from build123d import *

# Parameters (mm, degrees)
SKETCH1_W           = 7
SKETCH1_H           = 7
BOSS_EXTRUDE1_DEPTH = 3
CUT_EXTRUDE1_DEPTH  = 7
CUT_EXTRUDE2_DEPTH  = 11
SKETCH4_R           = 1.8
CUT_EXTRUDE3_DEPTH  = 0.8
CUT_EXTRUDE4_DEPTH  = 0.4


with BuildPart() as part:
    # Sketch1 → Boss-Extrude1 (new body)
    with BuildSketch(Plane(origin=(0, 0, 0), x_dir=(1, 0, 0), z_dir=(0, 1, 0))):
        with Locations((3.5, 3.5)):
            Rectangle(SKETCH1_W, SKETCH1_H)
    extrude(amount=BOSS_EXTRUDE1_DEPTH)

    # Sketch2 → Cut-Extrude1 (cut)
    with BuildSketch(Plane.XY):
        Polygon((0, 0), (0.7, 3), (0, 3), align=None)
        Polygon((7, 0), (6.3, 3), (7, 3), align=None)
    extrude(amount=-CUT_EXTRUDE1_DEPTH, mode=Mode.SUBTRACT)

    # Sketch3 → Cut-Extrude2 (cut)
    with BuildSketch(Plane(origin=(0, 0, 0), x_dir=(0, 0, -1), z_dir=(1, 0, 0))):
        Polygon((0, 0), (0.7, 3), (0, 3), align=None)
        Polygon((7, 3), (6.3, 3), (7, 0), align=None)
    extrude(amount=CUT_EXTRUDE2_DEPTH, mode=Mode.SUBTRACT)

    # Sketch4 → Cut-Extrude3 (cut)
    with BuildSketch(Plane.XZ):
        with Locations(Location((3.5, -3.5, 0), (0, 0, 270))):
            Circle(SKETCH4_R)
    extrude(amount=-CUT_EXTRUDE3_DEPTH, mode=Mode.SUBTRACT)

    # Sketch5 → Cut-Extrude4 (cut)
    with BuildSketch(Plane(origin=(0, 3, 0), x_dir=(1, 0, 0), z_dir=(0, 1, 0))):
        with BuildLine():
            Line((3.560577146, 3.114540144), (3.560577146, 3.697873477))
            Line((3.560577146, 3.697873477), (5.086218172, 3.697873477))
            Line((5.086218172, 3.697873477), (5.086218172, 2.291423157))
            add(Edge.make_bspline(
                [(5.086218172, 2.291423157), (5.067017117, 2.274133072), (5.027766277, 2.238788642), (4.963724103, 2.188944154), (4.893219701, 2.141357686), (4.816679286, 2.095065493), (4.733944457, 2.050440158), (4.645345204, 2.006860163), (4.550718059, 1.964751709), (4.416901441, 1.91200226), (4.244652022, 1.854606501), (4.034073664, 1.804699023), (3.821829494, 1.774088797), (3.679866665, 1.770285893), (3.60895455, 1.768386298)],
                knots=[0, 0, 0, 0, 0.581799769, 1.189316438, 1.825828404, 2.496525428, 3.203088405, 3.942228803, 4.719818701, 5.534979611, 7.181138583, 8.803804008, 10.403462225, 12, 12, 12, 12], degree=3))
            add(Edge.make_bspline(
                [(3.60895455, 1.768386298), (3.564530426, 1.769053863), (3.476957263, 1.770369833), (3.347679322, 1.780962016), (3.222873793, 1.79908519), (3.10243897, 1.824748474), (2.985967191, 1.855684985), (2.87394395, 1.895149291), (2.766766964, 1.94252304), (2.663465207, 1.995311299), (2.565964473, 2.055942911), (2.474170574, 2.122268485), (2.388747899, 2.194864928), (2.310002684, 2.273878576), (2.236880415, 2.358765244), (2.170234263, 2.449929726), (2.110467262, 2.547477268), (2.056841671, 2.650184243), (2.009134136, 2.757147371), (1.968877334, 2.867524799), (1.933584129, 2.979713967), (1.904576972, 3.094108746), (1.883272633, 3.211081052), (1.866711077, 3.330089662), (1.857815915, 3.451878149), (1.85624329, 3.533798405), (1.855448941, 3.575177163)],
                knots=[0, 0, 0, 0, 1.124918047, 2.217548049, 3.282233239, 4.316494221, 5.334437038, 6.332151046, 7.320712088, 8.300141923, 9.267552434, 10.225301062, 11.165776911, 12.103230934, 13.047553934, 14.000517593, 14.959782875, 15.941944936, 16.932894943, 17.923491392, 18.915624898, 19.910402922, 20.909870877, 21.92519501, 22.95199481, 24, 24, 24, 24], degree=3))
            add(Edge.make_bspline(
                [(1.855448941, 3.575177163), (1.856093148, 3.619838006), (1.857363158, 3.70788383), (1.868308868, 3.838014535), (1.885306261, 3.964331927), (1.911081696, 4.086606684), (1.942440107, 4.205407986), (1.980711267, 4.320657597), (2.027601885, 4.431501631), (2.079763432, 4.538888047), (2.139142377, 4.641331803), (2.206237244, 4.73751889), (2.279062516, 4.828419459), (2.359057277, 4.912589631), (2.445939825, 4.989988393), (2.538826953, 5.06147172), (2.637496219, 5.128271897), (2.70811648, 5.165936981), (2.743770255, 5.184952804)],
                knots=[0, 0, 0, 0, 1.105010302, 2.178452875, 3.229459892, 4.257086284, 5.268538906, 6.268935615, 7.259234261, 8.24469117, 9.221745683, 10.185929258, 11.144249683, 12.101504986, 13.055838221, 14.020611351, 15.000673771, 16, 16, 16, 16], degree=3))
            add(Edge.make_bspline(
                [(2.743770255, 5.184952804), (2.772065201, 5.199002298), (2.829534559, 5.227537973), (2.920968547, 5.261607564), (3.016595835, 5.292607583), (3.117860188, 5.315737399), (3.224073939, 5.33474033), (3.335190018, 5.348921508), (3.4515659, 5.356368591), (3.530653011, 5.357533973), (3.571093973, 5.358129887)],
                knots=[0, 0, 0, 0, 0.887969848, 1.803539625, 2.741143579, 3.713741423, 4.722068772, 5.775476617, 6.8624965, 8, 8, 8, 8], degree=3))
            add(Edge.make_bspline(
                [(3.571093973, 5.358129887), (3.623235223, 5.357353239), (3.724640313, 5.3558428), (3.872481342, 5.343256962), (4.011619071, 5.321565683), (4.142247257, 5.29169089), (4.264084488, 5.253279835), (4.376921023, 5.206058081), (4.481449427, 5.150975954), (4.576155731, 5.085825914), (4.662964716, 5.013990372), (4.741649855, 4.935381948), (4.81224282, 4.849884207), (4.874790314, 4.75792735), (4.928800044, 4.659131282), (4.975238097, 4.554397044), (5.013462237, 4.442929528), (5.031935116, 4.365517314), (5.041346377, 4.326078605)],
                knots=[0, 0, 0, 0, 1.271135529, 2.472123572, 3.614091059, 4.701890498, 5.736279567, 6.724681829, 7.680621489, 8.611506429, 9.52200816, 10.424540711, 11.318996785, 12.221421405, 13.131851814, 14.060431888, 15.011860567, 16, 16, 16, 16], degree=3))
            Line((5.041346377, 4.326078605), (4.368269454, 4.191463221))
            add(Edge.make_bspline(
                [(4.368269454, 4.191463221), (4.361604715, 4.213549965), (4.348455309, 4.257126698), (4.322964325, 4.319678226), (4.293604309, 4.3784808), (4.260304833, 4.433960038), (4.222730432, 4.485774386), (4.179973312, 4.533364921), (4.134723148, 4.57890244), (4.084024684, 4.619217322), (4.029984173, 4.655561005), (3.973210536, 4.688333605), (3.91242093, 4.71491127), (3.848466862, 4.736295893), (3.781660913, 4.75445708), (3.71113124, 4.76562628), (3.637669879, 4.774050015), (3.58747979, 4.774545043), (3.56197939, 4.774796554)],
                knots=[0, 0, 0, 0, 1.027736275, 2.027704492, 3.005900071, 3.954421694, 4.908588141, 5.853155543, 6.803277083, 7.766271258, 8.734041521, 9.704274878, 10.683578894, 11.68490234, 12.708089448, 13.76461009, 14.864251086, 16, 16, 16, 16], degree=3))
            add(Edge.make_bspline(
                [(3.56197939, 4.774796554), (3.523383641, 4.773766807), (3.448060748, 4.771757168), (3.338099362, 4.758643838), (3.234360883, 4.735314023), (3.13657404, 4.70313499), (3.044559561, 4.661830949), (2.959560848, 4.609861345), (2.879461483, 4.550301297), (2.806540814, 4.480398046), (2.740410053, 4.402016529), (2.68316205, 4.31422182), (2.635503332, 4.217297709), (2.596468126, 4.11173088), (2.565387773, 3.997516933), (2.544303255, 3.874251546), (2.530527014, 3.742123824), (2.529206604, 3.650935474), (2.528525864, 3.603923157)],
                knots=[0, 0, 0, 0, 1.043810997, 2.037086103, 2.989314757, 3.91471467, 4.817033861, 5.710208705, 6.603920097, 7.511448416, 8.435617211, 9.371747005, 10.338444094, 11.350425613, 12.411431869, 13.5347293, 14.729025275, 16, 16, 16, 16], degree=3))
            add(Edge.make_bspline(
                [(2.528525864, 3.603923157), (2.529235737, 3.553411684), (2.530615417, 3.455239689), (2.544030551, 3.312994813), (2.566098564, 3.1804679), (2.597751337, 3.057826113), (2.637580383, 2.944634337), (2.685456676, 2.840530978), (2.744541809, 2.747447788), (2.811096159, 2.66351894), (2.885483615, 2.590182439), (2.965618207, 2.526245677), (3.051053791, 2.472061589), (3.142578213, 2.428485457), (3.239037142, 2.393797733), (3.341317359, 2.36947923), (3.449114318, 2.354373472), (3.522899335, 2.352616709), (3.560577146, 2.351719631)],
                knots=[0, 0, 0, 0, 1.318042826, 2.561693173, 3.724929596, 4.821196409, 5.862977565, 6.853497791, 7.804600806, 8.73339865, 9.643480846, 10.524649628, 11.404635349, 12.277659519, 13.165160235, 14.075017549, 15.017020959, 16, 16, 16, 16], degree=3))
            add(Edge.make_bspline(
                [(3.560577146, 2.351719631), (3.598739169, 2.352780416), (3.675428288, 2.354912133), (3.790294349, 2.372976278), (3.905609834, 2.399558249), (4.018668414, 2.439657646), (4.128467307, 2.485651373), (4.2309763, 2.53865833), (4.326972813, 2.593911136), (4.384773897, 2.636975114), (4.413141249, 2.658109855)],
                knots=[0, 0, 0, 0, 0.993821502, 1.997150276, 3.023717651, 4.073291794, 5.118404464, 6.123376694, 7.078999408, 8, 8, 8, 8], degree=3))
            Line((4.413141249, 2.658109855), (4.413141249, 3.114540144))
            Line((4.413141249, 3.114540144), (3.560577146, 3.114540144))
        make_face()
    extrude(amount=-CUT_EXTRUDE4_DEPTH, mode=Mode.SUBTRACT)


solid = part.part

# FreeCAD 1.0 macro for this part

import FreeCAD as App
import Part
import Sketcher
from FreeCAD import Vector

doc = App.newDocument("Part")
body = doc.addObject("PartDesign::Body", "Body")

sketch1 = body.newObject("Sketcher::SketchObject", "Sketch")
sketch1.AttachmentSupport = (doc.getObject("XZ_Plane"), [""])
sketch1.MapMode = "FlatFace"
sketch1.addGeometry([
    Part.LineSegment(Vector(0, -7, 0), Vector(0, 0, 0)),
    Part.LineSegment(Vector(0, 0, 0), Vector(7, 0, 0)),
    Part.LineSegment(Vector(7, 0, 0), Vector(7, -7, 0)),
    Part.LineSegment(Vector(7, -7, 0), Vector(0, -7, 0)),
], False)
sketch1.addConstraint([
    Sketcher.Constraint("Coincident", 0, 2, 1, 1),
    Sketcher.Constraint("Coincident", 1, 2, 2, 1),
    Sketcher.Constraint("Coincident", 2, 2, 3, 1),
    Sketcher.Constraint("Coincident", 3, 2, 0, 1),
    Sketcher.Constraint("Vertical", 0),
    Sketcher.Constraint("Horizontal", 1),
    Sketcher.Constraint("Vertical", 2),
    Sketcher.Constraint("Horizontal", 3),
    Sketcher.Constraint("Coincident", 0, 2, -1, 1),
    Sketcher.Constraint("Equal", 3, 0),
    Sketcher.Constraint("DistanceX", 1, 1, 1, 2, 7.0),
])
pad1 = body.newObject("PartDesign::Pad", "Pad")
pad1.Profile = sketch1
pad1.Length = 3
pad1.Reversed = True

sketch2 = body.newObject("Sketcher::SketchObject", "Sketch001")
sketch2.AttachmentSupport = (doc.getObject("XY_Plane"), [""])
sketch2.MapMode = "FlatFace"
sketch2.addGeometry([
    Part.LineSegment(Vector(0, 0, 0), Vector(0.7, 3, 0)),
    Part.LineSegment(Vector(0.7, 3, 0), Vector(0, 3, 0)),
    Part.LineSegment(Vector(0, 3, 0), Vector(0, 0, 0)),
    Part.LineSegment(Vector(6.3, 3, 0), Vector(7, 0, 0)),
    Part.LineSegment(Vector(7, 0, 0), Vector(7, 3, 0)),
    Part.LineSegment(Vector(7, 3, 0), Vector(6.3, 3, 0)),
], False)
sketch2.addConstraint([
    Sketcher.Constraint("Coincident", 0, 2, 1, 1),
    Sketcher.Constraint("Coincident", 1, 2, 2, 1),
    Sketcher.Constraint("Coincident", 2, 2, 0, 1),
    Sketcher.Constraint("Coincident", 3, 2, 4, 1),
    Sketcher.Constraint("Coincident", 4, 2, 5, 1),
    Sketcher.Constraint("Coincident", 5, 2, 3, 1),
    Sketcher.Constraint("Horizontal", 1),
    Sketcher.Constraint("Vertical", 2),
    Sketcher.Constraint("Vertical", 4),
    Sketcher.Constraint("Horizontal", 5),
    Sketcher.Constraint("Coincident", 2, 2, -1, 1),
    Sketcher.Constraint("PointOnObject", 3, 2, -1),
    Sketcher.Constraint("Horizontal", 1, 2, 4, 2),
    Sketcher.Constraint("Equal", 1, 5),
    Sketcher.Constraint("DistanceY", 2, 2, 2, 1, 3.0),
    Sketcher.Constraint("DistanceX", 1, 2, 1, 1, 0.7),
    Sketcher.Constraint("DistanceX", -1, 1, 3, 2, 7.0),
])
pocket1 = body.newObject("PartDesign::Pocket", "Pocket")
pocket1.Profile = sketch2
pocket1.Length = 7

sketch3 = body.newObject("Sketcher::SketchObject", "Sketch002")
sketch3.AttachmentSupport = (doc.getObject("YZ_Plane"), [""])
sketch3.MapMode = "FlatFace"
sketch3.addGeometry([
    Part.LineSegment(Vector(0, 0, 0), Vector(3, -0.7, 0)),
    Part.LineSegment(Vector(3, -0.7, 0), Vector(3, 0, 0)),
    Part.LineSegment(Vector(3, 0, 0), Vector(0, 0, 0)),
    Part.LineSegment(Vector(3, -7, 0), Vector(3, -6.3, 0)),
    Part.LineSegment(Vector(3, -6.3, 0), Vector(0, -7, 0)),
    Part.LineSegment(Vector(0, -7, 0), Vector(3, -7, 0)),
], False)
sketch3.addConstraint([
    Sketcher.Constraint("Coincident", 0, 2, 1, 1),
    Sketcher.Constraint("Coincident", 1, 2, 2, 1),
    Sketcher.Constraint("Coincident", 2, 2, 0, 1),
    Sketcher.Constraint("Coincident", 3, 2, 4, 1),
    Sketcher.Constraint("Coincident", 4, 2, 5, 1),
    Sketcher.Constraint("Coincident", 5, 2, 3, 1),
    Sketcher.Constraint("Vertical", 1),
    Sketcher.Constraint("Horizontal", 2),
    Sketcher.Constraint("Vertical", 3),
    Sketcher.Constraint("Horizontal", 5),
    Sketcher.Constraint("Coincident", 2, 2, -1, 1),
    Sketcher.Constraint("PointOnObject", 4, 2, -2),
    Sketcher.Constraint("Vertical", 1, 2, 3, 2),
    Sketcher.Constraint("Equal", 1, 3),
    Sketcher.Constraint("DistanceX", 2, 2, 2, 1, 3.0),
    Sketcher.Constraint("DistanceY", 1, 1, 1, 2, 0.7),
    Sketcher.Constraint("DistanceY", 4, 2, -1, 1, 7.0),
])
pocket2 = body.newObject("PartDesign::Pocket", "Pocket001")
pocket2.Profile = sketch3
pocket2.Length = 11
pocket2.Reversed = True

sketch4 = body.newObject("Sketcher::SketchObject", "Sketch003")
sketch4.AttachmentSupport = (doc.getObject("XZ_Plane"), [""])
sketch4.MapMode = "FlatFace"
sketch4.addGeometry(Part.Circle(Vector(3.5, -3.5, 0), Vector(0, 0, 1), 1.8), False)
sketch4.addConstraint([
    Sketcher.Constraint("Diameter", 0, 3.6),
    Sketcher.Constraint("DistanceX", -1, 1, 0, 3, 3.5),
    Sketcher.Constraint("DistanceY", 0, 3, -1, 1, 3.5),
])
pocket3 = body.newObject("PartDesign::Pocket", "Pocket002")
pocket3.Profile = sketch4
pocket3.Length = 0.8

sketch5 = body.newObject("Sketcher::SketchObject", "Sketch004")
sketch5.AttachmentSupport = (doc.getObject("XZ_Plane"), [""])
sketch5.MapMode = "FlatFace"
sketch5.AttachmentOffset = App.Placement(Vector(0, 0, -3), App.Rotation())
sketch5.addGeometry([
    Part.LineSegment(Vector(3.560577, -3.697873, 0), Vector(3.560577, -3.11454, 0)),
    Part.LineSegment(Vector(3.560577, -3.11454, 0), Vector(4.413141, -3.11454, 0)),
    Part.LineSegment(Vector(4.413141, -3.11454, 0), Vector(4.413141, -2.65811, 0)),
    Part.BSplineCurve([Vector(3.560577, -2.35172, 0), Vector(3.598739, -2.35278, 0), Vector(3.675428, -2.354912, 0), Vector(3.790294, -2.372976, 0), Vector(3.90561, -2.399558, 0), Vector(4.018668, -2.439658, 0), Vector(4.128467, -2.485651, 0), Vector(4.230976, -2.538658, 0), Vector(4.326973, -2.593911, 0), Vector(4.384774, -2.636975, 0), Vector(4.413141, -2.65811, 0)], [4, 1, 1, 1, 1, 1, 1, 1, 4], [0, 0.993821502, 1.997150276, 3.023717651, 4.073291794, 5.118404464, 6.123376694, 7.078999408, 8], False, 3, [1, 1, 1, 1, 1, 1, 1, 1, 1, 1, 1], False),
    Part.BSplineCurve([Vector(2.528526, -3.603923, 0), Vector(2.529236, -3.553412, 0), Vector(2.530615, -3.45524, 0), Vector(2.544031, -3.312995, 0), Vector(2.566099, -3.180468, 0), Vector(2.597751, -3.057826, 0), Vector(2.63758, -2.944634, 0), Vector(2.685457, -2.840531, 0), Vector(2.744542, -2.747448, 0), Vector(2.811096, -2.663519, 0), Vector(2.885484, -2.590182, 0), Vector(2.965618, -2.526246, 0), Vector(3.051054, -2.472062, 0), Vector(3.142578, -2.428485, 0), Vector(3.239037, -2.393798, 0), Vector(3.341317, -2.369479, 0), Vector(3.449114, -2.354373, 0), Vector(3.522899, -2.352617, 0), Vector(3.560577, -2.35172, 0)], [4, 1, 1, 1, 1, 1, 1, 1, 1, 1, 1, 1, 1, 1, 1, 1, 4], [0, 1.318042826, 2.561693173, 3.724929596, 4.821196409, 5.862977565, 6.853497791, 7.804600806, 8.73339865, 9.643480846, 10.524649628, 11.404635349, 12.277659519, 13.165160235, 14.075017549, 15.017020959, 16], False, 3, [1, 1, 1, 1, 1, 1, 1, 1, 1, 1, 1, 1, 1, 1, 1, 1, 1, 1, 1], False),
    Part.BSplineCurve([Vector(3.561979, -4.774797, 0), Vector(3.523384, -4.773767, 0), Vector(3.448061, -4.771757, 0), Vector(3.338099, -4.758644, 0), Vector(3.234361, -4.735314, 0), Vector(3.136574, -4.703135, 0), Vector(3.04456, -4.661831, 0), Vector(2.959561, -4.609861, 0), Vector(2.879461, -4.550301, 0), Vector(2.806541, -4.480398, 0), Vector(2.74041, -4.402017, 0), Vector(2.683162, -4.314222, 0), Vector(2.635503, -4.217298, 0), Vector(2.596468, -4.111731, 0), Vector(2.565388, -3.997517, 0), Vector(2.544303, -3.874252, 0), Vector(2.530527, -3.742124, 0), Vector(2.529207, -3.650935, 0), Vector(2.528526, -3.603923, 0)], [4, 1, 1, 1, 1, 1, 1, 1, 1, 1, 1, 1, 1, 1, 1, 1, 4], [0, 1.043810997, 2.037086103, 2.989314757, 3.91471467, 4.817033861, 5.710208705, 6.603920097, 7.511448416, 8.435617211, 9.371747005, 10.338444094, 11.350425613, 12.411431869, 13.5347293, 14.729025275, 16], False, 3, [1, 1, 1, 1, 1, 1, 1, 1, 1, 1, 1, 1, 1, 1, 1, 1, 1, 1, 1], False),
    Part.BSplineCurve([Vector(4.368269, -4.191463, 0), Vector(4.361605, -4.21355, 0), Vector(4.348455, -4.257127, 0), Vector(4.322964, -4.319678, 0), Vector(4.293604, -4.378481, 0), Vector(4.260305, -4.43396, 0), Vector(4.22273, -4.485774, 0), Vector(4.179973, -4.533365, 0), Vector(4.134723, -4.578902, 0), Vector(4.084025, -4.619217, 0), Vector(4.029984, -4.655561, 0), Vector(3.973211, -4.688334, 0), Vector(3.912421, -4.714911, 0), Vector(3.848467, -4.736296, 0), Vector(3.781661, -4.754457, 0), Vector(3.711131, -4.765626, 0), Vector(3.63767, -4.77405, 0), Vector(3.58748, -4.774545, 0), Vector(3.561979, -4.774797, 0)], [4, 1, 1, 1, 1, 1, 1, 1, 1, 1, 1, 1, 1, 1, 1, 1, 4], [0, 1.027736275, 2.027704492, 3.005900071, 3.954421694, 4.908588141, 5.853155543, 6.803277083, 7.766271258, 8.734041521, 9.704274878, 10.683578894, 11.68490234, 12.708089448, 13.76461009, 14.864251086, 16], False, 3, [1, 1, 1, 1, 1, 1, 1, 1, 1, 1, 1, 1, 1, 1, 1, 1, 1, 1, 1], False),
    Part.LineSegment(Vector(4.368269, -4.191463, 0), Vector(5.041346, -4.326079, 0)),
    Part.BSplineCurve([Vector(3.571094, -5.35813, 0), Vector(3.623235, -5.357353, 0), Vector(3.72464, -5.355843, 0), Vector(3.872481, -5.343257, 0), Vector(4.011619, -5.321566, 0), Vector(4.142247, -5.291691, 0), Vector(4.264084, -5.25328, 0), Vector(4.376921, -5.206058, 0), Vector(4.481449, -5.150976, 0), Vector(4.576156, -5.085826, 0), Vector(4.662965, -5.01399, 0), Vector(4.74165, -4.935382, 0), Vector(4.812243, -4.849884, 0), Vector(4.87479, -4.757927, 0), Vector(4.9288, -4.659131, 0), Vector(4.975238, -4.554397, 0), Vector(5.013462, -4.44293, 0), Vector(5.031935, -4.365517, 0), Vector(5.041346, -4.326079, 0)], [4, 1, 1, 1, 1, 1, 1, 1, 1, 1, 1, 1, 1, 1, 1, 1, 4], [0, 1.271135529, 2.472123572, 3.614091059, 4.701890498, 5.736279567, 6.724681829, 7.680621489, 8.611506429, 9.52200816, 10.424540711, 11.318996785, 12.221421405, 13.131851814, 14.060431888, 15.011860567, 16], False, 3, [1, 1, 1, 1, 1, 1, 1, 1, 1, 1, 1, 1, 1, 1, 1, 1, 1, 1, 1], False),
    Part.BSplineCurve([Vector(2.74377, -5.184953, 0), Vector(2.772065, -5.199002, 0), Vector(2.829535, -5.227538, 0), Vector(2.920969, -5.261608, 0), Vector(3.016596, -5.292608, 0), Vector(3.11786, -5.315737, 0), Vector(3.224074, -5.33474, 0), Vector(3.33519, -5.348922, 0), Vector(3.451566, -5.356369, 0), Vector(3.530653, -5.357534, 0), Vector(3.571094, -5.35813, 0)], [4, 1, 1, 1, 1, 1, 1, 1, 4], [0, 0.887969848, 1.803539625, 2.741143579, 3.713741423, 4.722068772, 5.775476617, 6.8624965, 8], False, 3, [1, 1, 1, 1, 1, 1, 1, 1, 1, 1, 1], False),
    Part.BSplineCurve([Vector(1.855449, -3.575177, 0), Vector(1.856093, -3.619838, 0), Vector(1.857363, -3.707884, 0), Vector(1.868309, -3.838015, 0), Vector(1.885306, -3.964332, 0), Vector(1.911082, -4.086607, 0), Vector(1.94244, -4.205408, 0), Vector(1.980711, -4.320658, 0), Vector(2.027602, -4.431502, 0), Vector(2.079763, -4.538888, 0), Vector(2.139142, -4.641332, 0), Vector(2.206237, -4.737519, 0), Vector(2.279063, -4.828419, 0), Vector(2.359057, -4.91259, 0), Vector(2.44594, -4.989988, 0), Vector(2.538827, -5.061472, 0), Vector(2.637496, -5.128272, 0), Vector(2.708116, -5.165937, 0), Vector(2.74377, -5.184953, 0)], [4, 1, 1, 1, 1, 1, 1, 1, 1, 1, 1, 1, 1, 1, 1, 1, 4], [0, 1.105010302, 2.178452875, 3.229459892, 4.257086284, 5.268538906, 6.268935615, 7.259234261, 8.24469117, 9.221745683, 10.185929258, 11.144249683, 12.101504986, 13.055838221, 14.020611351, 15.000673771, 16], False, 3, [1, 1, 1, 1, 1, 1, 1, 1, 1, 1, 1, 1, 1, 1, 1, 1, 1, 1, 1], False),
    Part.BSplineCurve([Vector(3.608955, -1.768386, 0), Vector(3.56453, -1.769054, 0), Vector(3.476957, -1.77037, 0), Vector(3.347679, -1.780962, 0), Vector(3.222874, -1.799085, 0), Vector(3.102439, -1.824748, 0), Vector(2.985967, -1.855685, 0), Vector(2.873944, -1.895149, 0), Vector(2.766767, -1.942523, 0), Vector(2.663465, -1.995311, 0), Vector(2.565964, -2.055943, 0), Vector(2.474171, -2.122268, 0), Vector(2.388748, -2.194865, 0), Vector(2.310003, -2.273879, 0), Vector(2.23688, -2.358765, 0), Vector(2.170234, -2.44993, 0), Vector(2.110467, -2.547477, 0), Vector(2.056842, -2.650184, 0), Vector(2.009134, -2.757147, 0), Vector(1.968877, -2.867525, 0), Vector(1.933584, -2.979714, 0), Vector(1.904577, -3.094109, 0), Vector(1.883273, -3.211081, 0), Vector(1.866711, -3.33009, 0), Vector(1.857816, -3.451878, 0), Vector(1.856243, -3.533798, 0), Vector(1.855449, -3.575177, 0)], [4, 1, 1, 1, 1, 1, 1, 1, 1, 1, 1, 1, 1, 1, 1, 1, 1, 1, 1, 1, 1, 1, 1, 1, 4], [0, 1.124918047, 2.217548049, 3.282233239, 4.316494221, 5.334437038, 6.332151046, 7.320712088, 8.300141923, 9.267552434, 10.225301062, 11.165776911, 12.103230934, 13.047553934, 14.000517593, 14.959782875, 15.941944936, 16.932894943, 17.923491392, 18.915624898, 19.910402922, 20.909870877, 21.92519501, 22.95199481, 24], False, 3, [1, 1, 1, 1, 1, 1, 1, 1, 1, 1, 1, 1, 1, 1, 1, 1, 1, 1, 1, 1, 1, 1, 1, 1, 1, 1, 1], False),
    Part.BSplineCurve([Vector(5.086218, -2.291423, 0), Vector(5.067017, -2.274133, 0), Vector(5.027766, -2.238789, 0), Vector(4.963724, -2.188944, 0), Vector(4.89322, -2.141358, 0), Vector(4.816679, -2.095065, 0), Vector(4.733944, -2.05044, 0), Vector(4.645345, -2.00686, 0), Vector(4.550718, -1.964752, 0), Vector(4.416901, -1.912002, 0), Vector(4.244652, -1.854607, 0), Vector(4.034074, -1.804699, 0), Vector(3.821829, -1.774089, 0), Vector(3.679867, -1.770286, 0), Vector(3.608955, -1.768386, 0)], [4, 1, 1, 1, 1, 1, 1, 1, 1, 1, 1, 1, 4], [0, 0.581799769, 1.189316438, 1.825828404, 2.496525428, 3.203088405, 3.942228803, 4.719818701, 5.534979611, 7.181138583, 8.803804008, 10.403462225, 12], False, 3, [1, 1, 1, 1, 1, 1, 1, 1, 1, 1, 1, 1, 1, 1, 1], False),
    Part.LineSegment(Vector(5.086218, -2.291423, 0), Vector(5.086218, -3.697873, 0)),
    Part.LineSegment(Vector(5.086218, -3.697873, 0), Vector(3.560577, -3.697873, 0)),
], False)
sketch5.addConstraint([
    Sketcher.Constraint("Block", 3),
    Sketcher.Constraint("Block", 4),
    Sketcher.Constraint("Block", 5),
    Sketcher.Constraint("Block", 6),
    Sketcher.Constraint("Block", 8),
    Sketcher.Constraint("Block", 9),
    Sketcher.Constraint("Block", 10),
    Sketcher.Constraint("Block", 11),
    Sketcher.Constraint("Block", 12),
    Sketcher.Constraint("Coincident", 0, 2, 1, 1),
    Sketcher.Constraint("Coincident", 1, 2, 2, 1),
    Sketcher.Constraint("Coincident", 2, 2, 3, 2),
    Sketcher.Constraint("Coincident", 6, 1, 7, 1),
    Sketcher.Constraint("Coincident", 7, 2, 8, 2),
    Sketcher.Constraint("Coincident", 12, 1, 13, 1),
    Sketcher.Constraint("Coincident", 13, 2, 14, 1),
    Sketcher.Constraint("Coincident", 14, 2, 0, 1),
    Sketcher.Constraint("Vertical", 0),
    Sketcher.Constraint("Horizontal", 1),
    Sketcher.Constraint("Vertical", 2),
    Sketcher.Constraint("Vertical", 13),
    Sketcher.Constraint("Horizontal", 14),
    Sketcher.Constraint("DistanceX", 14, 2, 14, 1, 1.525641),
    Sketcher.Constraint("DistanceY", 2, 1, 2, 2, 0.45643),
    Sketcher.Constraint("DistanceY", 13, 2, 13, 1, 1.40645),
])
pocket4 = body.newObject("PartDesign::Pocket", "Pocket003")
pocket4.Profile = sketch5
pocket4.Length = 0.4
pocket4.Reversed = True

doc.recompute()
